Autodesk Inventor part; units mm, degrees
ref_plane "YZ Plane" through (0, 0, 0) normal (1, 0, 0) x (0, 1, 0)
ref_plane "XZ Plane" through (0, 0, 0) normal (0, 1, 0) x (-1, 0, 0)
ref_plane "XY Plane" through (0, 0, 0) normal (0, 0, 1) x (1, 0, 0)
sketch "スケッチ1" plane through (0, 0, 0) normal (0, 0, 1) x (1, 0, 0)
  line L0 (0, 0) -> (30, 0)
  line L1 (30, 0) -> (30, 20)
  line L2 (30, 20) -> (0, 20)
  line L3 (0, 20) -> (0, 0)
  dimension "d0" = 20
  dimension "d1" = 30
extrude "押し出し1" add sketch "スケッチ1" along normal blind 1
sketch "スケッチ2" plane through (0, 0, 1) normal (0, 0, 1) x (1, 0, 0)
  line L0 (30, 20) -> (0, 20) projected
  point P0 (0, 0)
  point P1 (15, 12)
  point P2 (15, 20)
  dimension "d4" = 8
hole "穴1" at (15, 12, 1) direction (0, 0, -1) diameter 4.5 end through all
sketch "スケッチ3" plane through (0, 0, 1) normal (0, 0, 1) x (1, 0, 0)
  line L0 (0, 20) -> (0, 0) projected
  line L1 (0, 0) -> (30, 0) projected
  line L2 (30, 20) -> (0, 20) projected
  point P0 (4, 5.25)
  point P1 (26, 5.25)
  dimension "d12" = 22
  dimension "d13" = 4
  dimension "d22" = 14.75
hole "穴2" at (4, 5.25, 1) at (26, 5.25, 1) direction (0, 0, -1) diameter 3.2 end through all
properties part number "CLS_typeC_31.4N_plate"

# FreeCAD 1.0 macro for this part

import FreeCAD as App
import Part
import Sketcher

V = App.Vector
Q = App.Units.Quantity


def add_polygon(sketch, points):
    """Adds a closed chain of lines whose ends are joined by coincident constraints."""
    first, n = sketch.GeometryCount, len(points)
    for a, b in zip(points, points[1:] + points[:1]):
        sketch.addGeometry(Part.LineSegment(App.Vector(*a, 0), App.Vector(*b, 0)), False)
    for i in range(n):
        sketch.addConstraint(Sketcher.Constraint("Coincident", first + i, 2, first + (i + 1) % n, 1))

doc = App.newDocument("Part")
body = doc.addObject("PartDesign::Body", "Body")

sketch1 = body.newObject("Sketcher::SketchObject", "Sketch")
sketch1.AttachmentSupport = (doc.getObject("XY_Plane"), [""])
sketch1.MapMode = "FlatFace"
add_polygon(sketch1, [(0, 20), (0, 0), (30, 0), (30, 20)])
sketch1.addConstraint([
    Sketcher.Constraint("Vertical", 0),
    Sketcher.Constraint("Horizontal", 1),
    Sketcher.Constraint("Vertical", 2),
    Sketcher.Constraint("Horizontal", 3),
    Sketcher.Constraint("Coincident", 0, 2, -1, 1),
    Sketcher.Constraint("DistanceX", 1, 1, 1, 2, Q("30 mm")),
    Sketcher.Constraint("DistanceY", 0, 2, 0, 1, Q("20 mm")),
])
pad1 = body.newObject("PartDesign::Pad", "Pad")
pad1.Profile = sketch1
pad1.Length = 1

sketch2 = body.newObject("Sketcher::SketchObject", "Sketch001")
sketch2.AttachmentSupport = (doc.getObject("XY_Plane"), [""])
sketch2.MapMode = "FlatFace"
sketch2.AttachmentOffset = App.Placement(V(0, 0, 1), App.Rotation())
sketch2.addGeometry(Part.Circle(V(15, 12, 0), V(0, 0, 1), 2.25), False)
sketch2.addConstraint([
    Sketcher.Constraint("Diameter", 0, Q("4.5 mm")),
    Sketcher.Constraint("DistanceX", -1, 1, 0, 3, Q("15 mm")),
    Sketcher.Constraint("DistanceY", -1, 1, 0, 3, Q("12 mm")),
])
doc.recompute()
hole = body.newObject("PartDesign::Hole", "Hole")
hole.Profile = sketch2
hole.ThreadType = "None"
hole.Diameter = 4.5
hole.DepthType = "ThroughAll"

sketch3 = body.newObject("Sketcher::SketchObject", "Sketch002")
sketch3.AttachmentSupport = (doc.getObject("XY_Plane"), [""])
sketch3.MapMode = "FlatFace"
sketch3.AttachmentOffset = App.Placement(V(0, 0, 1), App.Rotation())
sketch3.addGeometry([
    Part.Circle(V(4, 5.25, 0), V(0, 0, 1), 1.6),
    Part.Circle(V(26, 5.25, 0), V(0, 0, 1), 1.6),
], False)
sketch3.addConstraint([
    Sketcher.Constraint("Equal", 0, 1),
    Sketcher.Constraint("Horizontal", 0, 3, 1, 3),
    Sketcher.Constraint("Diameter", 0, Q("3.2 mm")),
    Sketcher.Constraint("DistanceX", -1, 1, 0, 3, Q("4 mm")),
    Sketcher.Constraint("DistanceX", -1, 1, 1, 3, Q("26 mm")),
    Sketcher.Constraint("DistanceY", -1, 1, 0, 3, Q("5.25 mm")),
])
doc.recompute()
hole2 = body.newObject("PartDesign::Hole", "Hole001")
hole2.Profile = sketch3
hole2.ThreadType = "None"
hole2.Diameter = 3.2
hole2.DepthType = "ThroughAll"

doc.recompute()
